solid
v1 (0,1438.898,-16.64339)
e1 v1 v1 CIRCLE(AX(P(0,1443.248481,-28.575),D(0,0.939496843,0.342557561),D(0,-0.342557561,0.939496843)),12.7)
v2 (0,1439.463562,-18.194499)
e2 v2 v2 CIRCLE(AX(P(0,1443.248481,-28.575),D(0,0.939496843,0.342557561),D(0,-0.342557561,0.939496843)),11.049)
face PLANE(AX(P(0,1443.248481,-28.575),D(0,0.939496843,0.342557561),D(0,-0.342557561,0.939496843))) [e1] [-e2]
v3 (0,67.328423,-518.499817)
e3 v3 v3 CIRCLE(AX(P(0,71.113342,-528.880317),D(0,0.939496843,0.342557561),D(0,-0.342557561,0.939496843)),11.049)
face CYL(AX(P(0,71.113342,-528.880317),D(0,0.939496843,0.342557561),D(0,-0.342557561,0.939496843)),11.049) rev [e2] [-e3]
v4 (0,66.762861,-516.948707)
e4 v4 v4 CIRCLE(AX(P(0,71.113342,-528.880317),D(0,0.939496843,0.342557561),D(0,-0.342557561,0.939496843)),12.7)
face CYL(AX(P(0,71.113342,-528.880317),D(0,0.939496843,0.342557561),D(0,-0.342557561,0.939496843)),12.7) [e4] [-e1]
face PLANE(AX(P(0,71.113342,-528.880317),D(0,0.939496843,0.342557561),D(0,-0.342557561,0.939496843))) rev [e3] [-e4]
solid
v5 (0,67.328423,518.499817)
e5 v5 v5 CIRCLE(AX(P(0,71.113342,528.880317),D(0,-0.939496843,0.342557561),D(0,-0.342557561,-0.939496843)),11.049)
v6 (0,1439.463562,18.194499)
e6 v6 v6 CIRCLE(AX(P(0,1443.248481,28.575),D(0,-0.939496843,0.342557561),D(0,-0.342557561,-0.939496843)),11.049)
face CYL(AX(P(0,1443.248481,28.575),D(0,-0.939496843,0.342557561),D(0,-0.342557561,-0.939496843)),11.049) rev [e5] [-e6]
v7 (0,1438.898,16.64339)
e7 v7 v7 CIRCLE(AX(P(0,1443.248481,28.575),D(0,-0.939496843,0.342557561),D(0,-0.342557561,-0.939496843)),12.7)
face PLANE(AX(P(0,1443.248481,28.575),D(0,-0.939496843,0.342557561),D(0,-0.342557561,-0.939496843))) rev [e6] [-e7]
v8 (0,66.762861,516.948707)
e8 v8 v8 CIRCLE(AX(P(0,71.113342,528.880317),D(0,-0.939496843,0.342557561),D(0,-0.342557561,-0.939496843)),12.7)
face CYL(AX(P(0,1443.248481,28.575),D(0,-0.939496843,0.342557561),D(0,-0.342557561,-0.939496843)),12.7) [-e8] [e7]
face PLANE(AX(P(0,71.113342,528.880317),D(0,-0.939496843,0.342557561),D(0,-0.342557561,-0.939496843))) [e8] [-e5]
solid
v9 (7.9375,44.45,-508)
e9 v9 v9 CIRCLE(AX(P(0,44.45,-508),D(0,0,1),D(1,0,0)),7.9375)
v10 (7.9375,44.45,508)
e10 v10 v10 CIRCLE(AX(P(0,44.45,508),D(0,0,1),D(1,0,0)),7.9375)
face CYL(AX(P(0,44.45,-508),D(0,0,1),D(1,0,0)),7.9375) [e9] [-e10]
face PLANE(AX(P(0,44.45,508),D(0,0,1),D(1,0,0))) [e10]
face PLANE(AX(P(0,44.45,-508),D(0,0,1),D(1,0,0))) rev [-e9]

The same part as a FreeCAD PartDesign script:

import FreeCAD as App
import Part
import Sketcher

V = App.Vector
Q = App.Units.Quantity

doc = App.newDocument("Part")
params = doc.addObject("Spreadsheet::Sheet", "Params")
for row, (alias, value) in enumerate([
    ("sketch1_diameter", "1 in"),
    ("sketch1_diameter2", "0.87 in"),
    ("pad1_length", "28.75 in"),
    ("pad1_length2", "28.75 in"),
    ("sketch2_diameter", "1 in"),
    ("sketch2_diameter2", "0.87 in"),
    ("pad2_length", "28.75 in"),
    ("pad2_length2", "28.75 in"),
    ("sketch3_diameter", "0.625 in"),
    ("pad3_length", "20 in"),
    ("pad3_length2", "20 in"),
], start=1):
    params.set(f"A{row}", alias)
    params.set(f"B{row}", "=" + value)
    params.setAlias(f"B{row}", alias)

body = doc.addObject("PartDesign::Body", "Body")

# Sketch on an angled plane
sketch1 = doc.addObject("Sketcher::SketchObject", "Sketch")
body.addObject(sketch1)
sketch1.Placement = App.Placement(V(0, 757.180911, -278.727658), App.Rotation(V(1, 0, 0), V(0, 0.342557561, -0.939496843), V(0, 0.939496843, 0.342557561), "ZXY"))
sketch1.addGeometry([
    Part.Circle(V(0, 0, 0), V(0, 0, 1), 13),
    Part.Circle(V(0, 0, 0), V(0, 0, 1), 11),
], False)
sketch1.addConstraint([
    Sketcher.Constraint("Coincident", 0, 3, -1, 1),
    Sketcher.Constraint("Coincident", 1, 3, -1, 1),
    Sketcher.Constraint("Diameter", 0, Q("1 in")),
    Sketcher.Constraint("Diameter", 1, Q("0.87 in")),
])
sketch1.setExpression("Constraints[2]", "Params.sketch1_diameter")
sketch1.setExpression("Constraints[3]", "Params.sketch1_diameter2")
pad1 = doc.addObject("PartDesign::Pad", "Pad")
body.addObject(pad1)
pad1.Profile = sketch1
pad1.Type = "TwoLengths"
pad1.setExpression("Length", "Params.pad1_length")
pad1.setExpression("Length2", "Params.pad1_length2")
body2 = doc.addObject("PartDesign::Body", "Body001")

# Sketch on an angled plane
sketch2 = doc.addObject("Sketcher::SketchObject", "Sketch001")
body2.addObject(sketch2)
sketch2.Placement = App.Placement(V(0, 757.180911, 278.727659), App.Rotation(V(-1, 0, 0), V(0, -0.342557561, -0.939496843), V(0, -0.939496843, 0.342557561), "ZXY"))
sketch2.addGeometry([
    Part.Circle(V(0, 0, 0), V(0, 0, 1), 13),
    Part.Circle(V(0, 0, 0), V(0, 0, 1), 11),
], False)
sketch2.addConstraint([
    Sketcher.Constraint("Coincident", 0, 3, -1, 1),
    Sketcher.Constraint("Coincident", 1, 3, -1, 1),
    Sketcher.Constraint("Diameter", 0, Q("1 in")),
    Sketcher.Constraint("Diameter", 1, Q("0.87 in")),
])
sketch2.setExpression("Constraints[2]", "Params.sketch2_diameter")
sketch2.setExpression("Constraints[3]", "Params.sketch2_diameter2")
pad2 = doc.addObject("PartDesign::Pad", "Pad001")
body2.addObject(pad2)
pad2.Profile = sketch2
pad2.Type = "TwoLengths"
pad2.setExpression("Length", "Params.pad2_length")
pad2.setExpression("Length2", "Params.pad2_length2")
body3 = doc.addObject("PartDesign::Body", "Body002")

# Sketch on XY plane
sketch3 = doc.addObject("Sketcher::SketchObject", "Sketch002")
body3.addObject(sketch3)
sketch3.AttachmentSupport = (doc.getObject("XY_Plane002"), [""])
sketch3.MapMode = "FlatFace"
sketch3.addGeometry(Part.Circle(V(0, 44, 0), V(0, 0, 1), 8), False)
sketch3.addConstraint([
    Sketcher.Constraint("PointOnObject", 0, 3, -2),
    Sketcher.Constraint("Diameter", 0, Q("0.625 in")),
    Sketcher.Constraint("DistanceY", -1, 1, 0, 3, Q("1.75 in")),
])
sketch3.setExpression("Constraints[1]", "Params.sketch3_diameter")
pad3 = doc.addObject("PartDesign::Pad", "Pad002")
body3.addObject(pad3)
pad3.Profile = sketch3
pad3.Type = "TwoLengths"
pad3.setExpression("Length", "Params.pad3_length")
pad3.setExpression("Length2", "Params.pad3_length2")

doc.recompute()
